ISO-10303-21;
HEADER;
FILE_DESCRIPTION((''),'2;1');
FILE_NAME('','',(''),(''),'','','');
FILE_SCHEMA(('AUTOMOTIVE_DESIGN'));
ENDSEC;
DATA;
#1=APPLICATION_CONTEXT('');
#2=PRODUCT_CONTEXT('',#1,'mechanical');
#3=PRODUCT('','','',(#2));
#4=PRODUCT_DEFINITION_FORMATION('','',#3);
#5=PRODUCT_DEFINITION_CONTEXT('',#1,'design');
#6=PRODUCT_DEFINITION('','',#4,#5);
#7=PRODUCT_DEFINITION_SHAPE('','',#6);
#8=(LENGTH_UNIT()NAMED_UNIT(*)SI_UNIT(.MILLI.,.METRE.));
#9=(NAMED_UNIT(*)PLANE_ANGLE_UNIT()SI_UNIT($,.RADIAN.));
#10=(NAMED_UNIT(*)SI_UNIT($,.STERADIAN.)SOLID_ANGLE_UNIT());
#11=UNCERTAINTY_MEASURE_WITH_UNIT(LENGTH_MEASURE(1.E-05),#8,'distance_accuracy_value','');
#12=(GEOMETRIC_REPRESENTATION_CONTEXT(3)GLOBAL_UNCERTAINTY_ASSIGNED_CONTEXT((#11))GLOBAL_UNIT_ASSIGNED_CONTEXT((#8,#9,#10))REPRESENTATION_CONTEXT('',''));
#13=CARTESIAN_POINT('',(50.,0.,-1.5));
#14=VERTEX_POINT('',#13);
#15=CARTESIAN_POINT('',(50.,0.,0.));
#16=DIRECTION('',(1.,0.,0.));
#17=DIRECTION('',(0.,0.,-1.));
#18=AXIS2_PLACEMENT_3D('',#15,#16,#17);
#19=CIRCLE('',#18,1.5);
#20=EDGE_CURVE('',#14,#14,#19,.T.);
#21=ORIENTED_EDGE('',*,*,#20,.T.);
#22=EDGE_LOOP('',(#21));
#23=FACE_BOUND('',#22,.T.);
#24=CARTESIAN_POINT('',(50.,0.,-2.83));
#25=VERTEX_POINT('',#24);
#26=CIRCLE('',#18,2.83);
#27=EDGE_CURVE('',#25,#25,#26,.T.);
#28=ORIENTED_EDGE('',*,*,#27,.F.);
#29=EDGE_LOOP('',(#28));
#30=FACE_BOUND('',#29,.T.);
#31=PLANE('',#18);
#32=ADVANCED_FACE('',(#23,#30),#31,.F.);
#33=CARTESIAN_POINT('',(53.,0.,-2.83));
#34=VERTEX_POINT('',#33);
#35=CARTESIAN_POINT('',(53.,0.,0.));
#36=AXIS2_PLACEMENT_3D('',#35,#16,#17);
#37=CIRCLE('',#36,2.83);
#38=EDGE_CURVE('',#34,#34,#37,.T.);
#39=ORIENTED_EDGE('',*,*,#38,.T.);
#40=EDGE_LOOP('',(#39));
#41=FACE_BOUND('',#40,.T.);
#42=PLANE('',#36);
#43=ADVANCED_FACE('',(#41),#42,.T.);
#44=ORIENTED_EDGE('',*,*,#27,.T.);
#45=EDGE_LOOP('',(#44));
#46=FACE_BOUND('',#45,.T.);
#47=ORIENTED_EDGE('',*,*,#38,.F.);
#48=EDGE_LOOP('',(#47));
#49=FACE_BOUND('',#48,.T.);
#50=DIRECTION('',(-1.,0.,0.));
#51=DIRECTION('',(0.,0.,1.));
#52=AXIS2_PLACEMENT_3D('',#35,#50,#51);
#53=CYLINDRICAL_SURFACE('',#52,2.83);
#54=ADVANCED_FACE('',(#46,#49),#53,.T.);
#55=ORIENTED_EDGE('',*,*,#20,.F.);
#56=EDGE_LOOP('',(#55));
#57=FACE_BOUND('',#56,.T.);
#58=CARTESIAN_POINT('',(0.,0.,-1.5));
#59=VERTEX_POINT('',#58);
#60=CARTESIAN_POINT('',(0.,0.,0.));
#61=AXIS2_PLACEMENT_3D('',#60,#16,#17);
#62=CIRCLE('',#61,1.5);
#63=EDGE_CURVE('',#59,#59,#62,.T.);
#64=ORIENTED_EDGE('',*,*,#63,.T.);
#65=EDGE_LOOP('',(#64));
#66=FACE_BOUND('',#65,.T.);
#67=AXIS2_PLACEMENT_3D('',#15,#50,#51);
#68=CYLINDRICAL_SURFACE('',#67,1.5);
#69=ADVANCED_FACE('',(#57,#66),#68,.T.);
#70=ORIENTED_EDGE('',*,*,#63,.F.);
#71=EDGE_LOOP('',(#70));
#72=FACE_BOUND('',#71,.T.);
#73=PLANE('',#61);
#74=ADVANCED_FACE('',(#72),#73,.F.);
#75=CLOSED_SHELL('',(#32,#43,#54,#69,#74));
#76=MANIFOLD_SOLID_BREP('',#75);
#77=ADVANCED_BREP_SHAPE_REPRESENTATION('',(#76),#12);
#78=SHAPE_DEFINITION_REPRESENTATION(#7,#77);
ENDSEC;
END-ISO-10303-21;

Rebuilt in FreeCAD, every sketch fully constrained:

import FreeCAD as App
import Part
import Sketcher

V = App.Vector
Q = App.Units.Quantity

doc = App.newDocument("Part")
body = doc.addObject("PartDesign::Body", "Body")

sketch1 = doc.addObject("Sketcher::SketchObject", "Sketch")
body.addObject(sketch1)
sketch1.AttachmentSupport = (doc.YZ_Plane, [""])
sketch1.MapMode = "FlatFace"
sketch1.addGeometry(Part.Circle(V(0, 0, 0), V(0, 0, 1), 1.5), False)
sketch1.addConstraint([
    Sketcher.Constraint("Coincident", 0, 3, -1, 1),
    Sketcher.Constraint("Diameter", 0, Q("3 mm")),
])
pad1 = doc.addObject("PartDesign::Pad", "Pad")
body.addObject(pad1)
pad1.Profile = sketch1
pad1.Length = 50

sketch2 = doc.addObject("Sketcher::SketchObject", "Sketch001")
body.addObject(sketch2)
sketch2.AttachmentSupport = (doc.YZ_Plane, [""])
sketch2.MapMode = "FlatFace"
sketch2.AttachmentOffset = App.Placement(V(0, 0, 50), App.Rotation())
sketch2.addGeometry(Part.Circle(V(0, 0, 0), V(0, 0, 1), 2.8), False)
sketch2.addConstraint([
    Sketcher.Constraint("Coincident", 0, 3, -1, 1),
    Sketcher.Constraint("Diameter", 0, Q("5.66 mm")),
])
pad2 = doc.addObject("PartDesign::Pad", "Pad001")
body.addObject(pad2)
pad2.Profile = sketch2
pad2.Length = 3

doc.recompute()
